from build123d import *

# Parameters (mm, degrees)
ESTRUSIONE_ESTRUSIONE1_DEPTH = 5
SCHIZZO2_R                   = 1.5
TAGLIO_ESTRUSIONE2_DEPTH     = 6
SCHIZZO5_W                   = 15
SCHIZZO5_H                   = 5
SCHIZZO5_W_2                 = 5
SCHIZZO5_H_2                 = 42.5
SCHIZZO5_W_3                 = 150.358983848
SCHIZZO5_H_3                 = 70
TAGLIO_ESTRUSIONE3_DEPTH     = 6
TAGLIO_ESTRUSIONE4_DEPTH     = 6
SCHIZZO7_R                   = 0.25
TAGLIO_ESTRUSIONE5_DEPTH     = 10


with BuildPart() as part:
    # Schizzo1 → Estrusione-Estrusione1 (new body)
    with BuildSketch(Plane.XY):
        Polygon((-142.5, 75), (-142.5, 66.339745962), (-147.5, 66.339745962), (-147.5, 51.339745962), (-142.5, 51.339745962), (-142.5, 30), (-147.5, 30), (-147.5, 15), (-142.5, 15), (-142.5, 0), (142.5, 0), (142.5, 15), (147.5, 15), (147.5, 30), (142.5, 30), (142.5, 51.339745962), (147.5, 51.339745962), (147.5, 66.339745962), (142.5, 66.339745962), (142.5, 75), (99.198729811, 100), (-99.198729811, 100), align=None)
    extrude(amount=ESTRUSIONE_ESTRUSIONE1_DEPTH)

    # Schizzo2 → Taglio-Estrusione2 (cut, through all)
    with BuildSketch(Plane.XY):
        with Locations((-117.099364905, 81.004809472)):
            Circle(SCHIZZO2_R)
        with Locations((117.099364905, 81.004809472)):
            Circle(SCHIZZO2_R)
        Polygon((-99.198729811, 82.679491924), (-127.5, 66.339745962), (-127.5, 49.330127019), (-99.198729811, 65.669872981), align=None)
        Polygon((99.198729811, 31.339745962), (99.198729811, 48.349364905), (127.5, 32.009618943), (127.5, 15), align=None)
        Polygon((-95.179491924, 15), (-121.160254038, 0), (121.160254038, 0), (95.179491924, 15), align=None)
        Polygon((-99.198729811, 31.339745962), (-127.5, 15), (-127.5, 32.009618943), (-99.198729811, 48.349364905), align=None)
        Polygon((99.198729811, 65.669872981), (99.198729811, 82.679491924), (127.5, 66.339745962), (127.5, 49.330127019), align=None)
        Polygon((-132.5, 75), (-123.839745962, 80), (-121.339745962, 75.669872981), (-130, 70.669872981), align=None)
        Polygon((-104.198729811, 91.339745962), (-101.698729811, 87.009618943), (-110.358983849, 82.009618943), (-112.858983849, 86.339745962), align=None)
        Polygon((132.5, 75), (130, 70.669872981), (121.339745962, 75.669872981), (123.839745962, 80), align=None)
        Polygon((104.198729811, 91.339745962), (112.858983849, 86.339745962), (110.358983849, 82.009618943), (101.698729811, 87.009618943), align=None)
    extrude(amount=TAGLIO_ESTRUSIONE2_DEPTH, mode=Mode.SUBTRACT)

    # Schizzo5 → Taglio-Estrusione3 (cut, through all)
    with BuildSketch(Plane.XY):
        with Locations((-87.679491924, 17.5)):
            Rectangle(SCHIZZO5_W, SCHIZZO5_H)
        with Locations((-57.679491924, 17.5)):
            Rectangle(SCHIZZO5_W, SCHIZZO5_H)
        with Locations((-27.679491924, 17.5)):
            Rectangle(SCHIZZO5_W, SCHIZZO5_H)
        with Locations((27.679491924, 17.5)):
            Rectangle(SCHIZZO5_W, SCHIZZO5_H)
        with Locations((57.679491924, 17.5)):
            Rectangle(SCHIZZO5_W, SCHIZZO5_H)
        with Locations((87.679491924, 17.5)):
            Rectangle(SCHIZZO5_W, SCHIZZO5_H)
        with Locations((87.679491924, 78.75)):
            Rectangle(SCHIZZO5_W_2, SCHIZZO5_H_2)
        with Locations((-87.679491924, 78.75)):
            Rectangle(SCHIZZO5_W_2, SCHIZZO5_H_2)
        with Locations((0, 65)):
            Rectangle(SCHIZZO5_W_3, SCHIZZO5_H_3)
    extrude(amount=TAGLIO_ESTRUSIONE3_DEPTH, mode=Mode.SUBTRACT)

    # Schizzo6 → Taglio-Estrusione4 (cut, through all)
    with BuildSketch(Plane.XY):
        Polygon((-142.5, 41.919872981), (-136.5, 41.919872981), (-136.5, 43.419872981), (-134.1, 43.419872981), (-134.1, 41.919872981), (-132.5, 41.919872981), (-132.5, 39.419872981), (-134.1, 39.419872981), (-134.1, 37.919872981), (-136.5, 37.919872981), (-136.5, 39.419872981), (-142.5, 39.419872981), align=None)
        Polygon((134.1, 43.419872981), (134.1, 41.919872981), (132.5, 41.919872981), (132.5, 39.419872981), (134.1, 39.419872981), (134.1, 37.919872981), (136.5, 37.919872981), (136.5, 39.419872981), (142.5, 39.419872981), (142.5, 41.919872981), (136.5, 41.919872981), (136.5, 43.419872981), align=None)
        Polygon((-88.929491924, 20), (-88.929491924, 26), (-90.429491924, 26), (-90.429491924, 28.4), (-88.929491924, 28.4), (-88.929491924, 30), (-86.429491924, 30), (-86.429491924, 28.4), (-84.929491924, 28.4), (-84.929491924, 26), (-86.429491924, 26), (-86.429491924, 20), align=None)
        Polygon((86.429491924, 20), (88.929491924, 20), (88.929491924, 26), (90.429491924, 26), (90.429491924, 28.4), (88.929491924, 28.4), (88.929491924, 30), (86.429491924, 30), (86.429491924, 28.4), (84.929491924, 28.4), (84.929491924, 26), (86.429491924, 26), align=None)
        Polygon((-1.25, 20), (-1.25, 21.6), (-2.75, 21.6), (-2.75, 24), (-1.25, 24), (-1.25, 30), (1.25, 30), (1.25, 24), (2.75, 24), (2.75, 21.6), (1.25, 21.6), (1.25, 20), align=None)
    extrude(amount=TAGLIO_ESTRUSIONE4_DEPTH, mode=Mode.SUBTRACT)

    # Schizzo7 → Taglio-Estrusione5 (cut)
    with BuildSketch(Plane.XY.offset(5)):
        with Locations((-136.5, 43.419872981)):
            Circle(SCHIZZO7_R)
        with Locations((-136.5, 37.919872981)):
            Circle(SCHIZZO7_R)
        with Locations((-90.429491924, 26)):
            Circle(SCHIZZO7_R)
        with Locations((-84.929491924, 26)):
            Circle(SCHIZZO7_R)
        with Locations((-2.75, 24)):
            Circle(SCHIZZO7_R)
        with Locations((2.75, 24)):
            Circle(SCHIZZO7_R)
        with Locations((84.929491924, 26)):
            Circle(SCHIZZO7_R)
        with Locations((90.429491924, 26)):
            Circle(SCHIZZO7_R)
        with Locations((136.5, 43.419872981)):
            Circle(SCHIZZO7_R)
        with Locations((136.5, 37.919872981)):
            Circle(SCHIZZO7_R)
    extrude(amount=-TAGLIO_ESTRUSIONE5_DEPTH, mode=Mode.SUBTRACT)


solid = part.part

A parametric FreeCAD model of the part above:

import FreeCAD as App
import Part
import Sketcher

V = App.Vector
Q = App.Units.Quantity

doc = App.newDocument("Part")
body = doc.addObject("PartDesign::Body", "Body")

# Sketch on XY plane
sketch1 = body.newObject("Sketcher::SketchObject", "Sketch")
sketch1.AttachmentSupport = (doc.getObject("XY_Plane"), [""])
sketch1.MapMode = "FlatFace"
sketch1.addGeometry(Part.LineSegment(V(-142, 75, 0), V(-142, 66, 0)), False)
sketch1.addGeometry(Part.LineSegment(V(-142, 66, 0), V(-148, 66, 0)), False)
sketch1.addGeometry(Part.LineSegment(V(-148, 66, 0), V(-148, 51, 0)), False)
sketch1.addGeometry(Part.LineSegment(V(-148, 51, 0), V(-142, 51, 0)), False)
sketch1.addGeometry(Part.LineSegment(V(-142, 51, 0), V(-142, 30, 0)), False)
sketch1.addGeometry(Part.LineSegment(V(-142, 30, 0), V(-148, 30, 0)), False)
sketch1.addGeometry(Part.LineSegment(V(-148, 30, 0), V(-148, 15, 0)), False)
sketch1.addGeometry(Part.LineSegment(V(-148, 15, 0), V(-142, 15, 0)), False)
sketch1.addGeometry(Part.LineSegment(V(-142, 15, 0), V(-142, 0, 0)), False)
sketch1.addGeometry(Part.LineSegment(V(-142, 0, 0), V(142, 0, 0)), False)
sketch1.addGeometry(Part.LineSegment(V(142, 0, 0), V(142, 15, 0)), False)
sketch1.addGeometry(Part.LineSegment(V(142, 15, 0), V(148, 15, 0)), False)
sketch1.addGeometry(Part.LineSegment(V(148, 15, 0), V(148, 30, 0)), False)
sketch1.addGeometry(Part.LineSegment(V(148, 30, 0), V(142, 30, 0)), False)
sketch1.addGeometry(Part.LineSegment(V(142, 30, 0), V(142, 51, 0)), False)
sketch1.addGeometry(Part.LineSegment(V(142, 51, 0), V(148, 51, 0)), False)
sketch1.addGeometry(Part.LineSegment(V(148, 51, 0), V(148, 66, 0)), False)
sketch1.addGeometry(Part.LineSegment(V(148, 66, 0), V(142, 66, 0)), False)
sketch1.addGeometry(Part.LineSegment(V(142, 66, 0), V(142, 75, 0)), False)
sketch1.addGeometry(Part.LineSegment(V(142, 75, 0), V(99, 100, 0)), False)
sketch1.addGeometry(Part.LineSegment(V(99, 100, 0), V(-99, 100, 0)), False)
sketch1.addGeometry(Part.LineSegment(V(-99, 100, 0), V(-142, 75, 0)), False)
sketch1.addConstraint(Sketcher.Constraint("Coincident", 0, 2, 1, 1))
sketch1.addConstraint(Sketcher.Constraint("Coincident", 1, 2, 2, 1))
sketch1.addConstraint(Sketcher.Constraint("Coincident", 2, 2, 3, 1))
sketch1.addConstraint(Sketcher.Constraint("Coincident", 3, 2, 4, 1))
sketch1.addConstraint(Sketcher.Constraint("Coincident", 4, 2, 5, 1))
sketch1.addConstraint(Sketcher.Constraint("Coincident", 5, 2, 6, 1))
sketch1.addConstraint(Sketcher.Constraint("Coincident", 6, 2, 7, 1))
sketch1.addConstraint(Sketcher.Constraint("Coincident", 7, 2, 8, 1))
sketch1.addConstraint(Sketcher.Constraint("Coincident", 8, 2, 9, 1))
sketch1.addConstraint(Sketcher.Constraint("Coincident", 9, 2, 10, 1))
sketch1.addConstraint(Sketcher.Constraint("Coincident", 10, 2, 11, 1))
sketch1.addConstraint(Sketcher.Constraint("Coincident", 11, 2, 12, 1))
sketch1.addConstraint(Sketcher.Constraint("Coincident", 12, 2, 13, 1))
sketch1.addConstraint(Sketcher.Constraint("Coincident", 13, 2, 14, 1))
sketch1.addConstraint(Sketcher.Constraint("Coincident", 14, 2, 15, 1))
sketch1.addConstraint(Sketcher.Constraint("Coincident", 15, 2, 16, 1))
sketch1.addConstraint(Sketcher.Constraint("Coincident", 16, 2, 17, 1))
sketch1.addConstraint(Sketcher.Constraint("Coincident", 17, 2, 18, 1))
sketch1.addConstraint(Sketcher.Constraint("Coincident", 18, 2, 19, 1))
sketch1.addConstraint(Sketcher.Constraint("Coincident", 19, 2, 20, 1))
sketch1.addConstraint(Sketcher.Constraint("Coincident", 20, 2, 21, 1))
sketch1.addConstraint(Sketcher.Constraint("Coincident", 21, 2, 0, 1))
sketch1.addConstraint(Sketcher.Constraint("Vertical", 0))
sketch1.addConstraint(Sketcher.Constraint("Horizontal", 1))
sketch1.addConstraint(Sketcher.Constraint("Vertical", 2))
sketch1.addConstraint(Sketcher.Constraint("Horizontal", 3))
sketch1.addConstraint(Sketcher.Constraint("Vertical", 4))
sketch1.addConstraint(Sketcher.Constraint("Horizontal", 5))
sketch1.addConstraint(Sketcher.Constraint("Vertical", 6))
sketch1.addConstraint(Sketcher.Constraint("Horizontal", 7))
sketch1.addConstraint(Sketcher.Constraint("Vertical", 8))
sketch1.addConstraint(Sketcher.Constraint("Horizontal", 9))
sketch1.addConstraint(Sketcher.Constraint("Vertical", 10))
sketch1.addConstraint(Sketcher.Constraint("Horizontal", 11))
sketch1.addConstraint(Sketcher.Constraint("Vertical", 12))
sketch1.addConstraint(Sketcher.Constraint("Horizontal", 13))
sketch1.addConstraint(Sketcher.Constraint("Vertical", 14))
sketch1.addConstraint(Sketcher.Constraint("Horizontal", 15))
sketch1.addConstraint(Sketcher.Constraint("Vertical", 16))
sketch1.addConstraint(Sketcher.Constraint("Horizontal", 17))
sketch1.addConstraint(Sketcher.Constraint("Vertical", 18))
sketch1.addConstraint(Sketcher.Constraint("Horizontal", 20))
sketch1.addConstraint(Sketcher.Constraint("Symmetric", 8, 2, 9, 2, -1, 1))
sketch1.addConstraint(Sketcher.Constraint("Symmetric", 6, 2, 11, 2, -2))
sketch1.addConstraint(Sketcher.Constraint("Symmetric", 4, 2, 13, 2, -2))
sketch1.addConstraint(Sketcher.Constraint("Symmetric", 2, 2, 15, 2, -2))
sketch1.addConstraint(Sketcher.Constraint("Symmetric", 0, 2, 17, 2, -2))
sketch1.addConstraint(Sketcher.Constraint("Horizontal", 18, 2, 21, 2))
sketch1.addConstraint(Sketcher.Constraint("Vertical", 0, 2, 3, 2))
sketch1.addConstraint(Sketcher.Constraint("Vertical", 2, 2, 5, 2))
sketch1.addConstraint(Sketcher.Constraint("Vertical", 4, 2, 7, 2))
sketch1.addConstraint(Sketcher.Constraint("Equal", 2, 6))
sketch1.addConstraint(Sketcher.Constraint("Equal", 6, 8))
sketch1.addConstraint(Sketcher.Constraint("Equal", 19, 21))
sketch1.addConstraint(Sketcher.Constraint("DistanceX", 1, 2, 1, 1, Q("5 mm")))
sketch1.addConstraint(Sketcher.Constraint("DistanceX", 9, 1, 9, 2, Q("285 mm")))
sketch1.addConstraint(Sketcher.Constraint("DistanceY", 2, 2, 2, 1, Q("15 mm")))
sketch1.addConstraint(Sketcher.Constraint("Angle", 19, Q("150 deg")))
sketch1.addConstraint(Sketcher.Constraint("Distance", 19, Q("50 mm")))
sketch1.addConstraint(Sketcher.Constraint("DistanceY", -1, 1, 18, 2, Q("75 mm")))
sketch1.addConstraint(Sketcher.Constraint("DistanceY", 0, 2, 0, 1, Q("8.660254 mm")))
pad1 = body.newObject("PartDesign::Pad", "Pad")
pad1.Profile = sketch1
pad1.Length = 5

# Sketch on XY plane
sketch2 = body.newObject("Sketcher::SketchObject", "Sketch001")
sketch2.AttachmentSupport = (doc.getObject("XY_Plane"), [""])
sketch2.MapMode = "FlatFace"
sketch2.addGeometry(Part.Circle(V(-117.1, 81, 0), V(0, 0, 1), 1.5), False)
sketch2.addGeometry(Part.Circle(V(117.1, 81, 0), V(0, 0, 1), 1.5), False)
sketch2.addGeometry(Part.LineSegment(V(-99.2, 82.7, 0), V(-127.5, 66.3, 0)), False)
sketch2.addGeometry(Part.LineSegment(V(-127.5, 66.3, 0), V(-127.5, 49.3, 0)), False)
sketch2.addGeometry(Part.LineSegment(V(-127.5, 49.3, 0), V(-99.2, 65.7, 0)), False)
sketch2.addGeometry(Part.LineSegment(V(-99.2, 65.7, 0), V(-99.2, 82.7, 0)), False)
sketch2.addGeometry(Part.LineSegment(V(99.2, 48.3, 0), V(99.2, 31.3, 0)), False)
sketch2.addGeometry(Part.LineSegment(V(99.2, 31.3, 0), V(127.5, 15, 0)), False)
sketch2.addGeometry(Part.LineSegment(V(127.5, 15, 0), V(127.5, 32, 0)), False)
sketch2.addGeometry(Part.LineSegment(V(127.5, 32, 0), V(99.2, 48.3, 0)), False)
sketch2.addGeometry(Part.LineSegment(V(-95.2, 15, 0), V(-121.2, 0, 0)), False)
sketch2.addGeometry(Part.LineSegment(V(-121.2, 0, 0), V(121.2, 0, 0)), False)
sketch2.addGeometry(Part.LineSegment(V(121.2, 0, 0), V(95.2, 15, 0)), False)
sketch2.addGeometry(Part.LineSegment(V(95.2, 15, 0), V(-95.2, 15, 0)), False)
sketch2.addGeometry(Part.LineSegment(V(-127.5, 15, 0), V(-99.2, 31.3, 0)), False)
sketch2.addGeometry(Part.LineSegment(V(-99.2, 31.3, 0), V(-99.2, 48.3, 0)), False)
sketch2.addGeometry(Part.LineSegment(V(-99.2, 48.3, 0), V(-127.5, 32, 0)), False)
sketch2.addGeometry(Part.LineSegment(V(-127.5, 32, 0), V(-127.5, 15, 0)), False)
sketch2.addGeometry(Part.LineSegment(V(99.2, 82.7, 0), V(99.2, 65.7, 0)), False)
sketch2.addGeometry(Part.LineSegment(V(99.2, 65.7, 0), V(127.5, 49.3, 0)), False)
sketch2.addGeometry(Part.LineSegment(V(127.5, 49.3, 0), V(127.5, 66.3, 0)), False)
sketch2.addGeometry(Part.LineSegment(V(127.5, 66.3, 0), V(99.2, 82.7, 0)), False)
sketch2.addGeometry(Part.LineSegment(V(-123.8, 80, 0), V(-132.5, 75, 0)), False)
sketch2.addGeometry(Part.LineSegment(V(-132.5, 75, 0), V(-130, 70.7, 0)), False)
sketch2.addGeometry(Part.LineSegment(V(-130, 70.7, 0), V(-121.3, 75.7, 0)), False)
sketch2.addGeometry(Part.LineSegment(V(-121.3, 75.7, 0), V(-123.8, 80, 0)), False)
sketch2.addGeometry(Part.LineSegment(V(-101.7, 87, 0), V(-104.2, 91.3, 0)), False)
sketch2.addGeometry(Part.LineSegment(V(-104.2, 91.3, 0), V(-112.9, 86.3, 0)), False)
sketch2.addGeometry(Part.LineSegment(V(-112.9, 86.3, 0), V(-110.4, 82, 0)), False)
sketch2.addGeometry(Part.LineSegment(V(-110.4, 82, 0), V(-101.7, 87, 0)), False)
sketch2.addGeometry(Part.LineSegment(V(130, 70.7, 0), V(132.5, 75, 0)), False)
sketch2.addGeometry(Part.LineSegment(V(132.5, 75, 0), V(123.8, 80, 0)), False)
sketch2.addGeometry(Part.LineSegment(V(123.8, 80, 0), V(121.3, 75.7, 0)), False)
sketch2.addGeometry(Part.LineSegment(V(121.3, 75.7, 0), V(130, 70.7, 0)), False)
sketch2.addGeometry(Part.LineSegment(V(112.9, 86.3, 0), V(104.2, 91.3, 0)), False)
sketch2.addGeometry(Part.LineSegment(V(104.2, 91.3, 0), V(101.7, 87, 0)), False)
sketch2.addGeometry(Part.LineSegment(V(101.7, 87, 0), V(110.4, 82, 0)), False)
sketch2.addGeometry(Part.LineSegment(V(110.4, 82, 0), V(112.9, 86.3, 0)), False)
sketch2.addConstraint(Sketcher.Constraint("Coincident", 2, 2, 3, 1))
sketch2.addConstraint(Sketcher.Constraint("Coincident", 3, 2, 4, 1))
sketch2.addConstraint(Sketcher.Constraint("Coincident", 4, 2, 5, 1))
sketch2.addConstraint(Sketcher.Constraint("Coincident", 5, 2, 2, 1))
sketch2.addConstraint(Sketcher.Constraint("Coincident", 6, 2, 7, 1))
sketch2.addConstraint(Sketcher.Constraint("Coincident", 7, 2, 8, 1))
sketch2.addConstraint(Sketcher.Constraint("Coincident", 8, 2, 9, 1))
sketch2.addConstraint(Sketcher.Constraint("Coincident", 9, 2, 6, 1))
sketch2.addConstraint(Sketcher.Constraint("Coincident", 10, 2, 11, 1))
sketch2.addConstraint(Sketcher.Constraint("Coincident", 11, 2, 12, 1))
sketch2.addConstraint(Sketcher.Constraint("Coincident", 12, 2, 13, 1))
sketch2.addConstraint(Sketcher.Constraint("Coincident", 13, 2, 10, 1))
sketch2.addConstraint(Sketcher.Constraint("Coincident", 14, 2, 15, 1))
sketch2.addConstraint(Sketcher.Constraint("Coincident", 15, 2, 16, 1))
sketch2.addConstraint(Sketcher.Constraint("Coincident", 16, 2, 17, 1))
sketch2.addConstraint(Sketcher.Constraint("Coincident", 17, 2, 14, 1))
sketch2.addConstraint(Sketcher.Constraint("Coincident", 18, 2, 19, 1))
sketch2.addConstraint(Sketcher.Constraint("Coincident", 19, 2, 20, 1))
sketch2.addConstraint(Sketcher.Constraint("Coincident", 20, 2, 21, 1))
sketch2.addConstraint(Sketcher.Constraint("Coincident", 21, 2, 18, 1))
sketch2.addConstraint(Sketcher.Constraint("Coincident", 22, 2, 23, 1))
sketch2.addConstraint(Sketcher.Constraint("Coincident", 23, 2, 24, 1))
sketch2.addConstraint(Sketcher.Constraint("Coincident", 24, 2, 25, 1))
sketch2.addConstraint(Sketcher.Constraint("Coincident", 25, 2, 22, 1))
sketch2.addConstraint(Sketcher.Constraint("Coincident", 26, 2, 27, 1))
sketch2.addConstraint(Sketcher.Constraint("Coincident", 27, 2, 28, 1))
sketch2.addConstraint(Sketcher.Constraint("Coincident", 28, 2, 29, 1))
sketch2.addConstraint(Sketcher.Constraint("Coincident", 29, 2, 26, 1))
sketch2.addConstraint(Sketcher.Constraint("Coincident", 30, 2, 31, 1))
sketch2.addConstraint(Sketcher.Constraint("Coincident", 31, 2, 32, 1))
sketch2.addConstraint(Sketcher.Constraint("Coincident", 32, 2, 33, 1))
sketch2.addConstraint(Sketcher.Constraint("Coincident", 33, 2, 30, 1))
sketch2.addConstraint(Sketcher.Constraint("Coincident", 34, 2, 35, 1))
sketch2.addConstraint(Sketcher.Constraint("Coincident", 35, 2, 36, 1))
sketch2.addConstraint(Sketcher.Constraint("Coincident", 36, 2, 37, 1))
sketch2.addConstraint(Sketcher.Constraint("Coincident", 37, 2, 34, 1))
sketch2.addConstraint(Sketcher.Constraint("Vertical", 3))
sketch2.addConstraint(Sketcher.Constraint("Vertical", 5))
sketch2.addConstraint(Sketcher.Constraint("Vertical", 6))
sketch2.addConstraint(Sketcher.Constraint("Vertical", 8))
sketch2.addConstraint(Sketcher.Constraint("Horizontal", 11))
sketch2.addConstraint(Sketcher.Constraint("Horizontal", 13))
sketch2.addConstraint(Sketcher.Constraint("Vertical", 15))
sketch2.addConstraint(Sketcher.Constraint("Vertical", 17))
sketch2.addConstraint(Sketcher.Constraint("Vertical", 18))
sketch2.addConstraint(Sketcher.Constraint("Vertical", 20))
sketch2.addConstraint(Sketcher.Constraint("Equal", 0, 1))
sketch2.addConstraint(Sketcher.Constraint("Symmetric", 10, 2, 11, 2, -1, 1))
sketch2.addConstraint(Sketcher.Constraint("Symmetric", 0, 3, 1, 3, -2))
sketch2.addConstraint(Sketcher.Constraint("Symmetric", 6, 2, 14, 2, -2))
sketch2.addConstraint(Sketcher.Constraint("Symmetric", 8, 2, 16, 2, -2))
sketch2.addConstraint(Sketcher.Constraint("Symmetric", 4, 2, 18, 2, -2))
sketch2.addConstraint(Sketcher.Constraint("Symmetric", 3, 2, 19, 2, -2))
sketch2.addConstraint(Sketcher.Constraint("Symmetric", 22, 2, 30, 2, -2))
sketch2.addConstraint(Sketcher.Constraint("Symmetric", 25, 2, 31, 2, -2))
sketch2.addConstraint(Sketcher.Constraint("Symmetric", 24, 2, 32, 2, -2))
sketch2.addConstraint(Sketcher.Constraint("Symmetric", 23, 2, 33, 2, -2))
sketch2.addConstraint(Sketcher.Constraint("Symmetric", 26, 2, 34, 2, -2))
sketch2.addConstraint(Sketcher.Constraint("Symmetric", 29, 2, 35, 2, -2))
sketch2.addConstraint(Sketcher.Constraint("Symmetric", 28, 2, 36, 2, -2))
sketch2.addConstraint(Sketcher.Constraint("Symmetric", 27, 2, 37, 2, -2))
sketch2.addConstraint(Sketcher.Constraint("Parallel", 2, 4))
sketch2.addConstraint(Sketcher.Constraint("Parallel", 7, 9))
sketch2.addConstraint(Sketcher.Constraint("Parallel", 4, 10))
sketch2.addConstraint(Sketcher.Constraint("Parallel", 9, 12))
sketch2.addConstraint(Sketcher.Constraint("Parallel", 10, 14))
sketch2.addConstraint(Sketcher.Constraint("Parallel", 14, 16))
sketch2.addConstraint(Sketcher.Constraint("Parallel", 12, 19))
sketch2.addConstraint(Sketcher.Constraint("Parallel", 19, 21))
sketch2.addConstraint(Sketcher.Constraint("Parallel", 16, 22))
sketch2.addConstraint(Sketcher.Constraint("Perpendicular", 22, 23))
sketch2.addConstraint(Sketcher.Constraint("Perpendicular", 23, 24))
sketch2.addConstraint(Sketcher.Constraint("Perpendicular", 24, 25))
sketch2.addConstraint(Sketcher.Constraint("Parallel", 25, 26))
sketch2.addConstraint(Sketcher.Constraint("Perpendicular", 26, 27))
sketch2.addConstraint(Sketcher.Constraint("Perpendicular", 27, 28))
sketch2.addConstraint(Sketcher.Constraint("Perpendicular", 28, 29))
sketch2.addConstraint(Sketcher.Constraint("Horizontal", 7, 2, 12, 2))
sketch2.addConstraint(Sketcher.Constraint("Horizontal", 2, 2, 20, 2))
sketch2.addConstraint(Sketcher.Constraint("Vertical", 5, 2, 14, 2))
sketch2.addConstraint(Sketcher.Constraint("Vertical", 3, 2, 16, 2))
sketch2.addConstraint(Sketcher.Constraint("Equal", 5, 6))
sketch2.addConstraint(Sketcher.Constraint("Equal", 25, 26))
sketch2.addConstraint(Sketcher.Constraint("Equal", 24, 27))
sketch2.addConstraint(Sketcher.Constraint("Diameter", 0, Q("3 mm")))
sketch2.addConstraint(Sketcher.Constraint("Angle", 2, Q("-150 deg")))
sketch2.addConstraint(Sketcher.Constraint("Distance", 10, Q("30 mm")))
sketch2.addConstraint(Sketcher.Constraint("Distance", 22, Q("10 mm")))
sketch2.addConstraint(Sketcher.Constraint("Distance", 23, Q("5 mm")))
sketch2.addConstraint(Sketcher.Constraint("DistanceY", -1, 1, 22, 2, Q("75 mm")))
sketch2.addConstraint(Sketcher.Constraint("DistanceX", 23, 2, -1, 1, Q("130 mm")))
sketch2.addConstraint(Sketcher.Constraint("DistanceY", 14, 2, 2, 2, Q("35 mm")))
sketch2.addConstraint(Sketcher.Constraint("DistanceX", 22, 2, 2, 2, Q("5 mm")))
sketch2.addConstraint(Sketcher.Constraint("DistanceY", 4, 2, 23, 2, Q("5 mm")))
sketch2.addConstraint(Sketcher.Constraint("DistanceX", 26, 2, 5, 2, Q("5 mm")))
sketch2.addConstraint(Sketcher.Constraint("DistanceX", 11, 1, 11, 2, Q("242.320508 mm")))
sketch2.addConstraint(Sketcher.Constraint("DistanceY", 3, 2, 3, 1, Q("17.009619 mm")))
sketch2.addConstraint(Sketcher.Constraint("DistanceY", -1, 1, 0, 3, Q("81.004809 mm")))
sketch2.addConstraint(Sketcher.Constraint("DistanceY", -1, 1, 28, 2, Q("82.009619 mm")))
sketch2.addConstraint(Sketcher.Constraint("DistanceX", 0, 3, 1, 3, Q("234.19873 mm")))
pocket1 = body.newObject("PartDesign::Pocket", "Pocket")
pocket1.Profile = sketch2
pocket1.Type = "ThroughAll"
pocket1.Reversed = True

# Sketch on XY plane
sketch3 = body.newObject("Sketcher::SketchObject", "Sketch002")
sketch3.AttachmentSupport = (doc.getObject("XY_Plane"), [""])
sketch3.MapMode = "FlatFace"
sketch3.addGeometry(Part.LineSegment(V(-95, 20, 0), V(-95, 15, 0)), False)
sketch3.addGeometry(Part.LineSegment(V(-95, 15, 0), V(-80, 15, 0)), False)
sketch3.addGeometry(Part.LineSegment(V(-80, 15, 0), V(-80, 20, 0)), False)
sketch3.addGeometry(Part.LineSegment(V(-80, 20, 0), V(-95, 20, 0)), False)
sketch3.addGeometry(Part.LineSegment(V(-65, 20, 0), V(-65, 15, 0)), False)
sketch3.addGeometry(Part.LineSegment(V(-65, 15, 0), V(-50, 15, 0)), False)
sketch3.addGeometry(Part.LineSegment(V(-50, 15, 0), V(-50, 20, 0)), False)
sketch3.addGeometry(Part.LineSegment(V(-50, 20, 0), V(-65, 20, 0)), False)
sketch3.addGeometry(Part.LineSegment(V(-35, 20, 0), V(-35, 15, 0)), False)
sketch3.addGeometry(Part.LineSegment(V(-35, 15, 0), V(-20, 15, 0)), False)
sketch3.addGeometry(Part.LineSegment(V(-20, 15, 0), V(-20, 20, 0)), False)
sketch3.addGeometry(Part.LineSegment(V(-20, 20, 0), V(-35, 20, 0)), False)
sketch3.addGeometry(Part.LineSegment(V(20, 20, 0), V(20, 15, 0)), False)
sketch3.addGeometry(Part.LineSegment(V(20, 15, 0), V(35, 15, 0)), False)
sketch3.addGeometry(Part.LineSegment(V(35, 15, 0), V(35, 20, 0)), False)
sketch3.addGeometry(Part.LineSegment(V(35, 20, 0), V(20, 20, 0)), False)
sketch3.addGeometry(Part.LineSegment(V(50, 20, 0), V(50, 15, 0)), False)
sketch3.addGeometry(Part.LineSegment(V(50, 15, 0), V(65, 15, 0)), False)
sketch3.addGeometry(Part.LineSegment(V(65, 15, 0), V(65, 20, 0)), False)
sketch3.addGeometry(Part.LineSegment(V(65, 20, 0), V(50, 20, 0)), False)
sketch3.addGeometry(Part.LineSegment(V(80, 20, 0), V(80, 15, 0)), False)
sketch3.addGeometry(Part.LineSegment(V(80, 15, 0), V(95, 15, 0)), False)
sketch3.addGeometry(Part.LineSegment(V(95, 15, 0), V(95, 20, 0)), False)
sketch3.addGeometry(Part.LineSegment(V(95, 20, 0), V(80, 20, 0)), False)
sketch3.addGeometry(Part.LineSegment(V(85, 100, 0), V(85, 58, 0)), False)
sketch3.addGeometry(Part.LineSegment(V(85, 58, 0), V(90, 58, 0)), False)
sketch3.addGeometry(Part.LineSegment(V(90, 58, 0), V(90, 100, 0)), False)
sketch3.addGeometry(Part.LineSegment(V(90, 100, 0), V(85, 100, 0)), False)
sketch3.addGeometry(Part.LineSegment(V(-90, 100, 0), V(-90, 58, 0)), False)
sketch3.addGeometry(Part.LineSegment(V(-90, 58, 0), V(-85, 58, 0)), False)
sketch3.addGeometry(Part.LineSegment(V(-85, 58, 0), V(-85, 100, 0)), False)
sketch3.addGeometry(Part.LineSegment(V(-85, 100, 0), V(-90, 100, 0)), False)
sketch3.addGeometry(Part.LineSegment(V(-75, 100, 0), V(-75, 30, 0)), False)
sketch3.addGeometry(Part.LineSegment(V(-75, 30, 0), V(75, 30, 0)), False)
sketch3.addGeometry(Part.LineSegment(V(75, 30, 0), V(75, 100, 0)), False)
sketch3.addGeometry(Part.LineSegment(V(75, 100, 0), V(-75, 100, 0)), False)
sketch3.addConstraint(Sketcher.Constraint("Coincident", 0, 2, 1, 1))
sketch3.addConstraint(Sketcher.Constraint("Coincident", 1, 2, 2, 1))
sketch3.addConstraint(Sketcher.Constraint("Coincident", 2, 2, 3, 1))
sketch3.addConstraint(Sketcher.Constraint("Coincident", 3, 2, 0, 1))
sketch3.addConstraint(Sketcher.Constraint("Coincident", 4, 2, 5, 1))
sketch3.addConstraint(Sketcher.Constraint("Coincident", 5, 2, 6, 1))
sketch3.addConstraint(Sketcher.Constraint("Coincident", 6, 2, 7, 1))
sketch3.addConstraint(Sketcher.Constraint("Coincident", 7, 2, 4, 1))
sketch3.addConstraint(Sketcher.Constraint("Coincident", 8, 2, 9, 1))
sketch3.addConstraint(Sketcher.Constraint("Coincident", 9, 2, 10, 1))
sketch3.addConstraint(Sketcher.Constraint("Coincident", 10, 2, 11, 1))
sketch3.addConstraint(Sketcher.Constraint("Coincident", 11, 2, 8, 1))
sketch3.addConstraint(Sketcher.Constraint("Coincident", 12, 2, 13, 1))
sketch3.addConstraint(Sketcher.Constraint("Coincident", 13, 2, 14, 1))
sketch3.addConstraint(Sketcher.Constraint("Coincident", 14, 2, 15, 1))
sketch3.addConstraint(Sketcher.Constraint("Coincident", 15, 2, 12, 1))
sketch3.addConstraint(Sketcher.Constraint("Coincident", 16, 2, 17, 1))
sketch3.addConstraint(Sketcher.Constraint("Coincident", 17, 2, 18, 1))
sketch3.addConstraint(Sketcher.Constraint("Coincident", 18, 2, 19, 1))
sketch3.addConstraint(Sketcher.Constraint("Coincident", 19, 2, 16, 1))
sketch3.addConstraint(Sketcher.Constraint("Coincident", 20, 2, 21, 1))
sketch3.addConstraint(Sketcher.Constraint("Coincident", 21, 2, 22, 1))
sketch3.addConstraint(Sketcher.Constraint("Coincident", 22, 2, 23, 1))
sketch3.addConstraint(Sketcher.Constraint("Coincident", 23, 2, 20, 1))
sketch3.addConstraint(Sketcher.Constraint("Coincident", 24, 2, 25, 1))
sketch3.addConstraint(Sketcher.Constraint("Coincident", 25, 2, 26, 1))
sketch3.addConstraint(Sketcher.Constraint("Coincident", 26, 2, 27, 1))
sketch3.addConstraint(Sketcher.Constraint("Coincident", 27, 2, 24, 1))
sketch3.addConstraint(Sketcher.Constraint("Coincident", 28, 2, 29, 1))
sketch3.addConstraint(Sketcher.Constraint("Coincident", 29, 2, 30, 1))
sketch3.addConstraint(Sketcher.Constraint("Coincident", 30, 2, 31, 1))
sketch3.addConstraint(Sketcher.Constraint("Coincident", 31, 2, 28, 1))
sketch3.addConstraint(Sketcher.Constraint("Coincident", 32, 2, 33, 1))
sketch3.addConstraint(Sketcher.Constraint("Coincident", 33, 2, 34, 1))
sketch3.addConstraint(Sketcher.Constraint("Coincident", 34, 2, 35, 1))
sketch3.addConstraint(Sketcher.Constraint("Coincident", 35, 2, 32, 1))
sketch3.addConstraint(Sketcher.Constraint("Vertical", 0))
sketch3.addConstraint(Sketcher.Constraint("Horizontal", 1))
sketch3.addConstraint(Sketcher.Constraint("Vertical", 2))
sketch3.addConstraint(Sketcher.Constraint("Horizontal", 3))
sketch3.addConstraint(Sketcher.Constraint("Vertical", 4))
sketch3.addConstraint(Sketcher.Constraint("Horizontal", 5))
sketch3.addConstraint(Sketcher.Constraint("Vertical", 6))
sketch3.addConstraint(Sketcher.Constraint("Horizontal", 7))
sketch3.addConstraint(Sketcher.Constraint("Vertical", 8))
sketch3.addConstraint(Sketcher.Constraint("Horizontal", 9))
sketch3.addConstraint(Sketcher.Constraint("Vertical", 10))
sketch3.addConstraint(Sketcher.Constraint("Horizontal", 11))
sketch3.addConstraint(Sketcher.Constraint("Vertical", 12))
sketch3.addConstraint(Sketcher.Constraint("Horizontal", 13))
sketch3.addConstraint(Sketcher.Constraint("Vertical", 14))
sketch3.addConstraint(Sketcher.Constraint("Horizontal", 15))
sketch3.addConstraint(Sketcher.Constraint("Vertical", 16))
sketch3.addConstraint(Sketcher.Constraint("Horizontal", 17))
sketch3.addConstraint(Sketcher.Constraint("Vertical", 18))
sketch3.addConstraint(Sketcher.Constraint("Horizontal", 19))
sketch3.addConstraint(Sketcher.Constraint("Vertical", 20))
sketch3.addConstraint(Sketcher.Constraint("Horizontal", 21))
sketch3.addConstraint(Sketcher.Constraint("Vertical", 22))
sketch3.addConstraint(Sketcher.Constraint("Horizontal", 23))
sketch3.addConstraint(Sketcher.Constraint("Vertical", 24))
sketch3.addConstraint(Sketcher.Constraint("Horizontal", 25))
sketch3.addConstraint(Sketcher.Constraint("Vertical", 26))
sketch3.addConstraint(Sketcher.Constraint("Horizontal", 27))
sketch3.addConstraint(Sketcher.Constraint("Vertical", 28))
sketch3.addConstraint(Sketcher.Constraint("Horizontal", 29))
sketch3.addConstraint(Sketcher.Constraint("Vertical", 30))
sketch3.addConstraint(Sketcher.Constraint("Horizontal", 31))
sketch3.addConstraint(Sketcher.Constraint("Vertical", 32))
sketch3.addConstraint(Sketcher.Constraint("Horizontal", 33))
sketch3.addConstraint(Sketcher.Constraint("Vertical", 34))
sketch3.addConstraint(Sketcher.Constraint("Horizontal", 35))
sketch3.addConstraint(Sketcher.Constraint("Symmetric", 9, 2, 12, 2, -2))
sketch3.addConstraint(Sketcher.Constraint("Symmetric", 11, 2, 14, 2, -2))
sketch3.addConstraint(Sketcher.Constraint("Symmetric", 5, 2, 16, 2, -2))
sketch3.addConstraint(Sketcher.Constraint("Symmetric", 7, 2, 18, 2, -2))
sketch3.addConstraint(Sketcher.Constraint("Symmetric", 1, 2, 20, 2, -2))
sketch3.addConstraint(Sketcher.Constraint("Symmetric", 3, 2, 22, 2, -2))
sketch3.addConstraint(Sketcher.Constraint("Symmetric", 25, 2, 28, 2, -2))
sketch3.addConstraint(Sketcher.Constraint("Symmetric", 27, 2, 30, 2, -2))
sketch3.addConstraint(Sketcher.Constraint("Horizontal", 1, 2, 4, 2))
sketch3.addConstraint(Sketcher.Constraint("Horizontal", 3, 2, 6, 2))
sketch3.addConstraint(Sketcher.Constraint("Horizontal", 5, 2, 8, 2))
sketch3.addConstraint(Sketcher.Constraint("Horizontal", 7, 2, 10, 2))
sketch3.addConstraint(Sketcher.Constraint("Horizontal", 31, 2, 34, 2))
sketch3.addConstraint(Sketcher.Constraint("Equal", 3, 5))
sketch3.addConstraint(Sketcher.Constraint("Equal", 7, 9))
sketch3.addConstraint(Sketcher.Constraint("Equal", 31, 0))
sketch3.addConstraint(Sketcher.Constraint("DistanceX", 1, 1, 1, 2, Q("15 mm")))
sketch3.addConstraint(Sketcher.Constraint("DistanceX", 25, 1, 25, 2, Q("5 mm")))
sketch3.addConstraint(Sketcher.Constraint("DistanceY", 32, 2, 32, 1, Q("70 mm")))
sketch3.addConstraint(Sketcher.Constraint("DistanceY", 24, 2, 24, 1, Q("42.5 mm")))
sketch3.addConstraint(Sketcher.Constraint("DistanceY", -1, 1, 0, 2, Q("15 mm")))
sketch3.addConstraint(Sketcher.Constraint("DistanceY", -1, 1, 26, 2, Q("100 mm")))
sketch3.addConstraint(Sketcher.Constraint("DistanceX", 1, 2, 4, 2, Q("15 mm")))
sketch3.addConstraint(Sketcher.Constraint("DistanceX", 5, 2, 8, 2, Q("15 mm")))
sketch3.addConstraint(Sketcher.Constraint("DistanceX", 23, 2, 24, 2, Q("5 mm")))
sketch3.addConstraint(Sketcher.Constraint("DistanceX", 2, 2, 32, 2, Q("5 mm")))
sketch3.addConstraint(Sketcher.Constraint("DistanceX", 33, 2, 23, 2, Q("5 mm")))
sketch3.addConstraint(Sketcher.Constraint("DistanceX", 33, 1, 33, 2, Q("150.358984 mm")))
pocket2 = body.newObject("PartDesign::Pocket", "Pocket001")
pocket2.Profile = sketch3
pocket2.Type = "ThroughAll"
pocket2.Reversed = True

# Sketch on XY plane
sketch4 = body.newObject("Sketcher::SketchObject", "Sketch003")
sketch4.AttachmentSupport = (doc.getObject("XY_Plane"), [""])
sketch4.MapMode = "FlatFace"
sketch4.addGeometry(Part.LineSegment(V(-136.5, 41.9, 0), V(-142.5, 41.9, 0)), False)
sketch4.addGeometry(Part.LineSegment(V(-142.5, 41.9, 0), V(-142.5, 39.4, 0)), False)
sketch4.addGeometry(Part.LineSegment(V(-142.5, 39.4, 0), V(-136.5, 39.4, 0)), False)
sketch4.addGeometry(Part.LineSegment(V(-136.5, 39.4, 0), V(-136.5, 37.9, 0)), False)
sketch4.addGeometry(Part.LineSegment(V(-136.5, 37.9, 0), V(-134.1, 37.9, 0)), False)
sketch4.addGeometry(Part.LineSegment(V(-134.1, 37.9, 0), V(-134.1, 39.4, 0)), False)
sketch4.addGeometry(Part.LineSegment(V(-134.1, 39.4, 0), V(-132.5, 39.4, 0)), False)
sketch4.addGeometry(Part.LineSegment(V(-132.5, 39.4, 0), V(-132.5, 41.9, 0)), False)
sketch4.addGeometry(Part.LineSegment(V(-132.5, 41.9, 0), V(-134.1, 41.9, 0)), False)
sketch4.addGeometry(Part.LineSegment(V(-134.1, 41.9, 0), V(-134.1, 43.4, 0)), False)
sketch4.addGeometry(Part.LineSegment(V(-134.1, 43.4, 0), V(-136.5, 43.4, 0)), False)
sketch4.addGeometry(Part.LineSegment(V(-136.5, 43.4, 0), V(-136.5, 41.9, 0)), False)
sketch4.addGeometry(Part.LineSegment(V(134.1, 43.4, 0), V(134.1, 41.9, 0)), False)
sketch4.addGeometry(Part.LineSegment(V(134.1, 41.9, 0), V(132.5, 41.9, 0)), False)
sketch4.addGeometry(Part.LineSegment(V(132.5, 41.9, 0), V(132.5, 39.4, 0)), False)
sketch4.addGeometry(Part.LineSegment(V(132.5, 39.4, 0), V(134.1, 39.4, 0)), False)
sketch4.addGeometry(Part.LineSegment(V(134.1, 39.4, 0), V(134.1, 37.9, 0)), False)
sketch4.addGeometry(Part.LineSegment(V(134.1, 37.9, 0), V(136.5, 37.9, 0)), False)
sketch4.addGeometry(Part.LineSegment(V(136.5, 37.9, 0), V(136.5, 39.4, 0)), False)
sketch4.addGeometry(Part.LineSegment(V(136.5, 39.4, 0), V(142.5, 39.4, 0)), False)
sketch4.addGeometry(Part.LineSegment(V(142.5, 39.4, 0), V(142.5, 41.9, 0)), False)
sketch4.addGeometry(Part.LineSegment(V(142.5, 41.9, 0), V(136.5, 41.9, 0)), False)
sketch4.addGeometry(Part.LineSegment(V(136.5, 41.9, 0), V(136.5, 43.4, 0)), False)
sketch4.addGeometry(Part.LineSegment(V(136.5, 43.4, 0), V(134.1, 43.4, 0)), False)
sketch4.addGeometry(Part.LineSegment(V(-88.9, 26, 0), V(-88.9, 20, 0)), False)
sketch4.addGeometry(Part.LineSegment(V(-88.9, 20, 0), V(-86.4, 20, 0)), False)
sketch4.addGeometry(Part.LineSegment(V(-86.4, 20, 0), V(-86.4, 26, 0)), False)
sketch4.addGeometry(Part.LineSegment(V(-86.4, 26, 0), V(-84.9, 26, 0)), False)
sketch4.addGeometry(Part.LineSegment(V(-84.9, 26, 0), V(-84.9, 28.4, 0)), False)
sketch4.addGeometry(Part.LineSegment(V(-84.9, 28.4, 0), V(-86.4, 28.4, 0)), False)
sketch4.addGeometry(Part.LineSegment(V(-86.4, 28.4, 0), V(-86.4, 30, 0)), False)
sketch4.addGeometry(Part.LineSegment(V(-86.4, 30, 0), V(-88.9, 30, 0)), False)
sketch4.addGeometry(Part.LineSegment(V(-88.9, 30, 0), V(-88.9, 28.4, 0)), False)
sketch4.addGeometry(Part.LineSegment(V(-88.9, 28.4, 0), V(-90.4, 28.4, 0)), False)
sketch4.addGeometry(Part.LineSegment(V(-90.4, 28.4, 0), V(-90.4, 26, 0)), False)
sketch4.addGeometry(Part.LineSegment(V(-90.4, 26, 0), V(-88.9, 26, 0)), False)
sketch4.addGeometry(Part.LineSegment(V(86.4, 20, 0), V(88.9, 20, 0)), False)
sketch4.addGeometry(Part.LineSegment(V(88.9, 20, 0), V(88.9, 26, 0)), False)
sketch4.addGeometry(Part.LineSegment(V(88.9, 26, 0), V(90.4, 26, 0)), False)
sketch4.addGeometry(Part.LineSegment(V(90.4, 26, 0), V(90.4, 28.4, 0)), False)
sketch4.addGeometry(Part.LineSegment(V(90.4, 28.4, 0), V(88.9, 28.4, 0)), False)
sketch4.addGeometry(Part.LineSegment(V(88.9, 28.4, 0), V(88.9, 30, 0)), False)
sketch4.addGeometry(Part.LineSegment(V(88.9, 30, 0), V(86.4, 30, 0)), False)
sketch4.addGeometry(Part.LineSegment(V(86.4, 30, 0), V(86.4, 28.4, 0)), False)
sketch4.addGeometry(Part.LineSegment(V(86.4, 28.4, 0), V(84.9, 28.4, 0)), False)
sketch4.addGeometry(Part.LineSegment(V(84.9, 28.4, 0), V(84.9, 26, 0)), False)
sketch4.addGeometry(Part.LineSegment(V(84.9, 26, 0), V(86.4, 26, 0)), False)
sketch4.addGeometry(Part.LineSegment(V(86.4, 26, 0), V(86.4, 20, 0)), False)
sketch4.addGeometry(Part.LineSegment(V(-1.2, 21.6, 0), V(-1.2, 20, 0)), False)
sketch4.addGeometry(Part.LineSegment(V(-1.2, 20, 0), V(1.2, 20, 0)), False)
sketch4.addGeometry(Part.LineSegment(V(1.2, 20, 0), V(1.2, 21.6, 0)), False)
sketch4.addGeometry(Part.LineSegment(V(1.2, 21.6, 0), V(2.8, 21.6, 0)), False)
sketch4.addGeometry(Part.LineSegment(V(2.8, 21.6, 0), V(2.8, 24, 0)), False)
sketch4.addGeometry(Part.LineSegment(V(2.8, 24, 0), V(1.2, 24, 0)), False)
sketch4.addGeometry(Part.LineSegment(V(1.2, 24, 0), V(1.2, 30, 0)), False)
sketch4.addGeometry(Part.LineSegment(V(1.2, 30, 0), V(-1.2, 30, 0)), False)
sketch4.addGeometry(Part.LineSegment(V(-1.2, 30, 0), V(-1.2, 24, 0)), False)
sketch4.addGeometry(Part.LineSegment(V(-1.2, 24, 0), V(-2.8, 24, 0)), False)
sketch4.addGeometry(Part.LineSegment(V(-2.8, 24, 0), V(-2.8, 21.6, 0)), False)
sketch4.addGeometry(Part.LineSegment(V(-2.8, 21.6, 0), V(-1.2, 21.6, 0)), False)
sketch4.addConstraint(Sketcher.Constraint("Coincident", 0, 2, 1, 1))
sketch4.addConstraint(Sketcher.Constraint("Coincident", 1, 2, 2, 1))
sketch4.addConstraint(Sketcher.Constraint("Coincident", 2, 2, 3, 1))
sketch4.addConstraint(Sketcher.Constraint("Coincident", 3, 2, 4, 1))
sketch4.addConstraint(Sketcher.Constraint("Coincident", 4, 2, 5, 1))
sketch4.addConstraint(Sketcher.Constraint("Coincident", 5, 2, 6, 1))
sketch4.addConstraint(Sketcher.Constraint("Coincident", 6, 2, 7, 1))
sketch4.addConstraint(Sketcher.Constraint("Coincident", 7, 2, 8, 1))
sketch4.addConstraint(Sketcher.Constraint("Coincident", 8, 2, 9, 1))
sketch4.addConstraint(Sketcher.Constraint("Coincident", 9, 2, 10, 1))
sketch4.addConstraint(Sketcher.Constraint("Coincident", 10, 2, 11, 1))
sketch4.addConstraint(Sketcher.Constraint("Coincident", 11, 2, 0, 1))
sketch4.addConstraint(Sketcher.Constraint("Coincident", 12, 2, 13, 1))
sketch4.addConstraint(Sketcher.Constraint("Coincident", 13, 2, 14, 1))
sketch4.addConstraint(Sketcher.Constraint("Coincident", 14, 2, 15, 1))
sketch4.addConstraint(Sketcher.Constraint("Coincident", 15, 2, 16, 1))
sketch4.addConstraint(Sketcher.Constraint("Coincident", 16, 2, 17, 1))
sketch4.addConstraint(Sketcher.Constraint("Coincident", 17, 2, 18, 1))
sketch4.addConstraint(Sketcher.Constraint("Coincident", 18, 2, 19, 1))
sketch4.addConstraint(Sketcher.Constraint("Coincident", 19, 2, 20, 1))
sketch4.addConstraint(Sketcher.Constraint("Coincident", 20, 2, 21, 1))
sketch4.addConstraint(Sketcher.Constraint("Coincident", 21, 2, 22, 1))
sketch4.addConstraint(Sketcher.Constraint("Coincident", 22, 2, 23, 1))
sketch4.addConstraint(Sketcher.Constraint("Coincident", 23, 2, 12, 1))
sketch4.addConstraint(Sketcher.Constraint("Coincident", 24, 2, 25, 1))
sketch4.addConstraint(Sketcher.Constraint("Coincident", 25, 2, 26, 1))
sketch4.addConstraint(Sketcher.Constraint("Coincident", 26, 2, 27, 1))
sketch4.addConstraint(Sketcher.Constraint("Coincident", 27, 2, 28, 1))
sketch4.addConstraint(Sketcher.Constraint("Coincident", 28, 2, 29, 1))
sketch4.addConstraint(Sketcher.Constraint("Coincident", 29, 2, 30, 1))
sketch4.addConstraint(Sketcher.Constraint("Coincident", 30, 2, 31, 1))
sketch4.addConstraint(Sketcher.Constraint("Coincident", 31, 2, 32, 1))
sketch4.addConstraint(Sketcher.Constraint("Coincident", 32, 2, 33, 1))
sketch4.addConstraint(Sketcher.Constraint("Coincident", 33, 2, 34, 1))
sketch4.addConstraint(Sketcher.Constraint("Coincident", 34, 2, 35, 1))
sketch4.addConstraint(Sketcher.Constraint("Coincident", 35, 2, 24, 1))
sketch4.addConstraint(Sketcher.Constraint("Coincident", 36, 2, 37, 1))
sketch4.addConstraint(Sketcher.Constraint("Coincident", 37, 2, 38, 1))
sketch4.addConstraint(Sketcher.Constraint("Coincident", 38, 2, 39, 1))
sketch4.addConstraint(Sketcher.Constraint("Coincident", 39, 2, 40, 1))
sketch4.addConstraint(Sketcher.Constraint("Coincident", 40, 2, 41, 1))
sketch4.addConstraint(Sketcher.Constraint("Coincident", 41, 2, 42, 1))
sketch4.addConstraint(Sketcher.Constraint("Coincident", 42, 2, 43, 1))
sketch4.addConstraint(Sketcher.Constraint("Coincident", 43, 2, 44, 1))
sketch4.addConstraint(Sketcher.Constraint("Coincident", 44, 2, 45, 1))
sketch4.addConstraint(Sketcher.Constraint("Coincident", 45, 2, 46, 1))
sketch4.addConstraint(Sketcher.Constraint("Coincident", 46, 2, 47, 1))
sketch4.addConstraint(Sketcher.Constraint("Coincident", 47, 2, 36, 1))
sketch4.addConstraint(Sketcher.Constraint("Coincident", 48, 2, 49, 1))
sketch4.addConstraint(Sketcher.Constraint("Coincident", 49, 2, 50, 1))
sketch4.addConstraint(Sketcher.Constraint("Coincident", 50, 2, 51, 1))
sketch4.addConstraint(Sketcher.Constraint("Coincident", 51, 2, 52, 1))
sketch4.addConstraint(Sketcher.Constraint("Coincident", 52, 2, 53, 1))
sketch4.addConstraint(Sketcher.Constraint("Coincident", 53, 2, 54, 1))
sketch4.addConstraint(Sketcher.Constraint("Coincident", 54, 2, 55, 1))
sketch4.addConstraint(Sketcher.Constraint("Coincident", 55, 2, 56, 1))
sketch4.addConstraint(Sketcher.Constraint("Coincident", 56, 2, 57, 1))
sketch4.addConstraint(Sketcher.Constraint("Coincident", 57, 2, 58, 1))
sketch4.addConstraint(Sketcher.Constraint("Coincident", 58, 2, 59, 1))
sketch4.addConstraint(Sketcher.Constraint("Coincident", 59, 2, 48, 1))
sketch4.addConstraint(Sketcher.Constraint("Horizontal", 0))
sketch4.addConstraint(Sketcher.Constraint("Vertical", 1))
sketch4.addConstraint(Sketcher.Constraint("Horizontal", 2))
sketch4.addConstraint(Sketcher.Constraint("Vertical", 3))
sketch4.addConstraint(Sketcher.Constraint("Horizontal", 4))
sketch4.addConstraint(Sketcher.Constraint("Vertical", 5))
sketch4.addConstraint(Sketcher.Constraint("Horizontal", 6))
sketch4.addConstraint(Sketcher.Constraint("Vertical", 7))
sketch4.addConstraint(Sketcher.Constraint("Horizontal", 8))
sketch4.addConstraint(Sketcher.Constraint("Vertical", 9))
sketch4.addConstraint(Sketcher.Constraint("Horizontal", 10))
sketch4.addConstraint(Sketcher.Constraint("Vertical", 11))
sketch4.addConstraint(Sketcher.Constraint("Vertical", 12))
sketch4.addConstraint(Sketcher.Constraint("Horizontal", 13))
sketch4.addConstraint(Sketcher.Constraint("Vertical", 14))
sketch4.addConstraint(Sketcher.Constraint("Horizontal", 15))
sketch4.addConstraint(Sketcher.Constraint("Vertical", 16))
sketch4.addConstraint(Sketcher.Constraint("Horizontal", 17))
sketch4.addConstraint(Sketcher.Constraint("Vertical", 18))
sketch4.addConstraint(Sketcher.Constraint("Horizontal", 19))
sketch4.addConstraint(Sketcher.Constraint("Vertical", 20))
sketch4.addConstraint(Sketcher.Constraint("Horizontal", 21))
sketch4.addConstraint(Sketcher.Constraint("Vertical", 22))
sketch4.addConstraint(Sketcher.Constraint("Horizontal", 23))
sketch4.addConstraint(Sketcher.Constraint("Vertical", 24))
sketch4.addConstraint(Sketcher.Constraint("Horizontal", 25))
sketch4.addConstraint(Sketcher.Constraint("Vertical", 26))
sketch4.addConstraint(Sketcher.Constraint("Horizontal", 27))
sketch4.addConstraint(Sketcher.Constraint("Vertical", 28))
sketch4.addConstraint(Sketcher.Constraint("Horizontal", 29))
sketch4.addConstraint(Sketcher.Constraint("Vertical", 30))
sketch4.addConstraint(Sketcher.Constraint("Horizontal", 31))
sketch4.addConstraint(Sketcher.Constraint("Vertical", 32))
sketch4.addConstraint(Sketcher.Constraint("Horizontal", 33))
sketch4.addConstraint(Sketcher.Constraint("Vertical", 34))
sketch4.addConstraint(Sketcher.Constraint("Horizontal", 35))
sketch4.addConstraint(Sketcher.Constraint("Horizontal", 36))
sketch4.addConstraint(Sketcher.Constraint("Vertical", 37))
sketch4.addConstraint(Sketcher.Constraint("Horizontal", 38))
sketch4.addConstraint(Sketcher.Constraint("Vertical", 39))
sketch4.addConstraint(Sketcher.Constraint("Horizontal", 40))
sketch4.addConstraint(Sketcher.Constraint("Vertical", 41))
sketch4.addConstraint(Sketcher.Constraint("Horizontal", 42))
sketch4.addConstraint(Sketcher.Constraint("Vertical", 43))
sketch4.addConstraint(Sketcher.Constraint("Horizontal", 44))
sketch4.addConstraint(Sketcher.Constraint("Vertical", 45))
sketch4.addConstraint(Sketcher.Constraint("Horizontal", 46))
sketch4.addConstraint(Sketcher.Constraint("Vertical", 47))
sketch4.addConstraint(Sketcher.Constraint("Vertical", 48))
sketch4.addConstraint(Sketcher.Constraint("Horizontal", 49))
sketch4.addConstraint(Sketcher.Constraint("Vertical", 50))
sketch4.addConstraint(Sketcher.Constraint("Horizontal", 51))
sketch4.addConstraint(Sketcher.Constraint("Vertical", 52))
sketch4.addConstraint(Sketcher.Constraint("Horizontal", 53))
sketch4.addConstraint(Sketcher.Constraint("Vertical", 54))
sketch4.addConstraint(Sketcher.Constraint("Horizontal", 55))
sketch4.addConstraint(Sketcher.Constraint("Vertical", 56))
sketch4.addConstraint(Sketcher.Constraint("Horizontal", 57))
sketch4.addConstraint(Sketcher.Constraint("Vertical", 58))
sketch4.addConstraint(Sketcher.Constraint("Horizontal", 59))
sketch4.addConstraint(Sketcher.Constraint("Symmetric", 8, 2, 12, 2, -2))
sketch4.addConstraint(Sketcher.Constraint("Symmetric", 6, 2, 14, 2, -2))
sketch4.addConstraint(Sketcher.Constraint("Symmetric", 4, 2, 16, 2, -2))
sketch4.addConstraint(Sketcher.Constraint("Symmetric", 2, 2, 18, 2, -2))
sketch4.addConstraint(Sketcher.Constraint("Symmetric", 0, 2, 20, 2, -2))
sketch4.addConstraint(Sketcher.Constraint("Symmetric", 10, 2, 22, 2, -2))
sketch4.addConstraint(Sketcher.Constraint("Symmetric", 24, 2, 36, 2, -2))
sketch4.addConstraint(Sketcher.Constraint("Symmetric", 34, 2, 38, 2, -2))
sketch4.addConstraint(Sketcher.Constraint("Symmetric", 32, 2, 40, 2, -2))
sketch4.addConstraint(Sketcher.Constraint("Symmetric", 30, 2, 42, 2, -2))
sketch4.addConstraint(Sketcher.Constraint("Symmetric", 28, 2, 44, 2, -2))
sketch4.addConstraint(Sketcher.Constraint("Symmetric", 26, 2, 46, 2, -2))
sketch4.addConstraint(Sketcher.Constraint("Symmetric", 53, 2, 56, 2, -2))
sketch4.addConstraint(Sketcher.Constraint("Symmetric", 51, 2, 58, 2, -2))
sketch4.addConstraint(Sketcher.Constraint("Horizontal", 2, 2, 5, 2))
sketch4.addConstraint(Sketcher.Constraint("Horizontal", 0, 2, 7, 2))
sketch4.addConstraint(Sketcher.Constraint("Horizontal", 29, 2, 32, 2))
sketch4.addConstraint(Sketcher.Constraint("Horizontal", 27, 2, 34, 2))
sketch4.addConstraint(Sketcher.Constraint("Horizontal", 47, 2, 48, 2))
sketch4.addConstraint(Sketcher.Constraint("Horizontal", 42, 2, 54, 2))
sketch4.addConstraint(Sketcher.Constraint("Vertical", 5, 2, 8, 2))
sketch4.addConstraint(Sketcher.Constraint("Vertical", 3, 2, 10, 2))
sketch4.addConstraint(Sketcher.Constraint("Vertical", 26, 2, 29, 2))
sketch4.addConstraint(Sketcher.Constraint("Vertical", 24, 2, 31, 2))
sketch4.addConstraint(Sketcher.Constraint("Vertical", 50, 2, 53, 2))
sketch4.addConstraint(Sketcher.Constraint("Vertical", 48, 2, 55, 2))
sketch4.addConstraint(Sketcher.Constraint("Equal", 29, 33))
sketch4.addConstraint(Sketcher.Constraint("Equal", 42, 49))
sketch4.addConstraint(Sketcher.Constraint("Equal", 46, 51))
sketch4.addConstraint(Sketcher.Constraint("Equal", 55, 1))
sketch4.addConstraint(Sketcher.Constraint("Equal", 59, 3))
sketch4.addConstraint(Sketcher.Constraint("Equal", 5, 9))
sketch4.addConstraint(Sketcher.Constraint("Equal", 21, 24))
sketch4.addConstraint(Sketcher.Constraint("Equal", 23, 28))
sketch4.addConstraint(Sketcher.Constraint("Equal", 15, 30))
sketch4.addConstraint(Sketcher.Constraint("Equal", 43, 48))
sketch4.addConstraint(Sketcher.Constraint("Equal", 45, 52))
sketch4.addConstraint(Sketcher.Constraint("DistanceX", 0, 2, 0, 1, Q("6 mm")))
sketch4.addConstraint(Sketcher.Constraint("DistanceX", 4, 1, 4, 2, Q("2.4 mm")))
sketch4.addConstraint(Sketcher.Constraint("DistanceX", 6, 1, 6, 2, Q("1.6 mm")))
sketch4.addConstraint(Sketcher.Constraint("DistanceX", 25, 1, 25, 2, Q("2.5 mm")))
sketch4.addConstraint(Sketcher.Constraint("DistanceX", 27, 1, 27, 2, Q("1.5 mm")))
sketch4.addConstraint(Sketcher.Constraint("DistanceY", -1, 1, 24, 2, Q("20 mm")))
sketch4.addConstraint(Sketcher.Constraint("DistanceX", 7, 2, 13, 2, Q("265 mm")))
sketch4.addConstraint(Sketcher.Constraint("DistanceX", 24, 2, -1, 1, Q("88.929492 mm")))
sketch4.addConstraint(Sketcher.Constraint("DistanceY", -1, 1, 0, 2, Q("41.919873 mm")))
pocket3 = body.newObject("PartDesign::Pocket", "Pocket002")
pocket3.Profile = sketch4
pocket3.Type = "ThroughAll"
pocket3.Reversed = True

# Sketch on XY plane
sketch5 = body.newObject("Sketcher::SketchObject", "Sketch004")
sketch5.AttachmentSupport = (doc.getObject("XY_Plane"), [""])
sketch5.MapMode = "FlatFace"
sketch5.AttachmentOffset = App.Placement(V(0, 0, 5), App.Rotation())
sketch5.addGeometry(Part.Circle(V(-136.5, 43.42, 0), V(0, 0, 1), 0.25), False)
sketch5.addGeometry(Part.Circle(V(-136.5, 37.92, 0), V(0, 0, 1), 0.25), False)
sketch5.addGeometry(Part.Circle(V(-90.43, 26, 0), V(0, 0, 1), 0.25), False)
sketch5.addGeometry(Part.Circle(V(-84.93, 26, 0), V(0, 0, 1), 0.25), False)
sketch5.addGeometry(Part.Circle(V(-2.75, 24, 0), V(0, 0, 1), 0.25), False)
sketch5.addGeometry(Part.Circle(V(2.75, 24, 0), V(0, 0, 1), 0.25), False)
sketch5.addGeometry(Part.Circle(V(84.93, 26, 0), V(0, 0, 1), 0.25), False)
sketch5.addGeometry(Part.Circle(V(90.43, 26, 0), V(0, 0, 1), 0.25), False)
sketch5.addGeometry(Part.Circle(V(136.5, 43.42, 0), V(0, 0, 1), 0.25), False)
sketch5.addGeometry(Part.Circle(V(136.5, 37.92, 0), V(0, 0, 1), 0.25), False)
sketch5.addConstraint(Sketcher.Constraint("Equal", 0, 1))
sketch5.addConstraint(Sketcher.Constraint("Equal", 1, 2))
sketch5.addConstraint(Sketcher.Constraint("Equal", 2, 3))
sketch5.addConstraint(Sketcher.Constraint("Equal", 3, 4))
sketch5.addConstraint(Sketcher.Constraint("Equal", 4, 5))
sketch5.addConstraint(Sketcher.Constraint("Equal", 5, 6))
sketch5.addConstraint(Sketcher.Constraint("Equal", 6, 7))
sketch5.addConstraint(Sketcher.Constraint("Equal", 7, 8))
sketch5.addConstraint(Sketcher.Constraint("Equal", 8, 9))
sketch5.addConstraint(Sketcher.Constraint("Symmetric", 4, 3, 5, 3, -2))
sketch5.addConstraint(Sketcher.Constraint("Symmetric", 3, 3, 6, 3, -2))
sketch5.addConstraint(Sketcher.Constraint("Symmetric", 2, 3, 7, 3, -2))
sketch5.addConstraint(Sketcher.Constraint("Symmetric", 0, 3, 8, 3, -2))
sketch5.addConstraint(Sketcher.Constraint("Symmetric", 1, 3, 9, 3, -2))
sketch5.addConstraint(Sketcher.Constraint("Horizontal", 2, 3, 3, 3))
sketch5.addConstraint(Sketcher.Constraint("Vertical", 0, 3, 1, 3))
sketch5.addConstraint(Sketcher.Constraint("Diameter", 0, Q("0.5 mm")))
sketch5.addConstraint(Sketcher.Constraint("DistanceY", -1, 1, 2, 3, Q("26 mm")))
sketch5.addConstraint(Sketcher.Constraint("DistanceY", -1, 1, 4, 3, Q("24 mm")))
sketch5.addConstraint(Sketcher.Constraint("DistanceX", 0, 3, -1, 1, Q("136.5 mm")))
sketch5.addConstraint(Sketcher.Constraint("DistanceY", 1, 3, 0, 3, Q("5.5 mm")))
sketch5.addConstraint(Sketcher.Constraint("DistanceX", 2, 3, 3, 3, Q("5.5 mm")))
sketch5.addConstraint(Sketcher.Constraint("DistanceX", 4, 3, 5, 3, Q("5.5 mm")))
sketch5.addConstraint(Sketcher.Constraint("DistanceX", 2, 3, -1, 1, Q("90.429492 mm")))
sketch5.addConstraint(Sketcher.Constraint("DistanceY", -1, 1, 0, 3, Q("43.419873 mm")))
pocket4 = body.newObject("PartDesign::Pocket", "Pocket003")
pocket4.Profile = sketch5
pocket4.Length = 10

doc.recompute()
